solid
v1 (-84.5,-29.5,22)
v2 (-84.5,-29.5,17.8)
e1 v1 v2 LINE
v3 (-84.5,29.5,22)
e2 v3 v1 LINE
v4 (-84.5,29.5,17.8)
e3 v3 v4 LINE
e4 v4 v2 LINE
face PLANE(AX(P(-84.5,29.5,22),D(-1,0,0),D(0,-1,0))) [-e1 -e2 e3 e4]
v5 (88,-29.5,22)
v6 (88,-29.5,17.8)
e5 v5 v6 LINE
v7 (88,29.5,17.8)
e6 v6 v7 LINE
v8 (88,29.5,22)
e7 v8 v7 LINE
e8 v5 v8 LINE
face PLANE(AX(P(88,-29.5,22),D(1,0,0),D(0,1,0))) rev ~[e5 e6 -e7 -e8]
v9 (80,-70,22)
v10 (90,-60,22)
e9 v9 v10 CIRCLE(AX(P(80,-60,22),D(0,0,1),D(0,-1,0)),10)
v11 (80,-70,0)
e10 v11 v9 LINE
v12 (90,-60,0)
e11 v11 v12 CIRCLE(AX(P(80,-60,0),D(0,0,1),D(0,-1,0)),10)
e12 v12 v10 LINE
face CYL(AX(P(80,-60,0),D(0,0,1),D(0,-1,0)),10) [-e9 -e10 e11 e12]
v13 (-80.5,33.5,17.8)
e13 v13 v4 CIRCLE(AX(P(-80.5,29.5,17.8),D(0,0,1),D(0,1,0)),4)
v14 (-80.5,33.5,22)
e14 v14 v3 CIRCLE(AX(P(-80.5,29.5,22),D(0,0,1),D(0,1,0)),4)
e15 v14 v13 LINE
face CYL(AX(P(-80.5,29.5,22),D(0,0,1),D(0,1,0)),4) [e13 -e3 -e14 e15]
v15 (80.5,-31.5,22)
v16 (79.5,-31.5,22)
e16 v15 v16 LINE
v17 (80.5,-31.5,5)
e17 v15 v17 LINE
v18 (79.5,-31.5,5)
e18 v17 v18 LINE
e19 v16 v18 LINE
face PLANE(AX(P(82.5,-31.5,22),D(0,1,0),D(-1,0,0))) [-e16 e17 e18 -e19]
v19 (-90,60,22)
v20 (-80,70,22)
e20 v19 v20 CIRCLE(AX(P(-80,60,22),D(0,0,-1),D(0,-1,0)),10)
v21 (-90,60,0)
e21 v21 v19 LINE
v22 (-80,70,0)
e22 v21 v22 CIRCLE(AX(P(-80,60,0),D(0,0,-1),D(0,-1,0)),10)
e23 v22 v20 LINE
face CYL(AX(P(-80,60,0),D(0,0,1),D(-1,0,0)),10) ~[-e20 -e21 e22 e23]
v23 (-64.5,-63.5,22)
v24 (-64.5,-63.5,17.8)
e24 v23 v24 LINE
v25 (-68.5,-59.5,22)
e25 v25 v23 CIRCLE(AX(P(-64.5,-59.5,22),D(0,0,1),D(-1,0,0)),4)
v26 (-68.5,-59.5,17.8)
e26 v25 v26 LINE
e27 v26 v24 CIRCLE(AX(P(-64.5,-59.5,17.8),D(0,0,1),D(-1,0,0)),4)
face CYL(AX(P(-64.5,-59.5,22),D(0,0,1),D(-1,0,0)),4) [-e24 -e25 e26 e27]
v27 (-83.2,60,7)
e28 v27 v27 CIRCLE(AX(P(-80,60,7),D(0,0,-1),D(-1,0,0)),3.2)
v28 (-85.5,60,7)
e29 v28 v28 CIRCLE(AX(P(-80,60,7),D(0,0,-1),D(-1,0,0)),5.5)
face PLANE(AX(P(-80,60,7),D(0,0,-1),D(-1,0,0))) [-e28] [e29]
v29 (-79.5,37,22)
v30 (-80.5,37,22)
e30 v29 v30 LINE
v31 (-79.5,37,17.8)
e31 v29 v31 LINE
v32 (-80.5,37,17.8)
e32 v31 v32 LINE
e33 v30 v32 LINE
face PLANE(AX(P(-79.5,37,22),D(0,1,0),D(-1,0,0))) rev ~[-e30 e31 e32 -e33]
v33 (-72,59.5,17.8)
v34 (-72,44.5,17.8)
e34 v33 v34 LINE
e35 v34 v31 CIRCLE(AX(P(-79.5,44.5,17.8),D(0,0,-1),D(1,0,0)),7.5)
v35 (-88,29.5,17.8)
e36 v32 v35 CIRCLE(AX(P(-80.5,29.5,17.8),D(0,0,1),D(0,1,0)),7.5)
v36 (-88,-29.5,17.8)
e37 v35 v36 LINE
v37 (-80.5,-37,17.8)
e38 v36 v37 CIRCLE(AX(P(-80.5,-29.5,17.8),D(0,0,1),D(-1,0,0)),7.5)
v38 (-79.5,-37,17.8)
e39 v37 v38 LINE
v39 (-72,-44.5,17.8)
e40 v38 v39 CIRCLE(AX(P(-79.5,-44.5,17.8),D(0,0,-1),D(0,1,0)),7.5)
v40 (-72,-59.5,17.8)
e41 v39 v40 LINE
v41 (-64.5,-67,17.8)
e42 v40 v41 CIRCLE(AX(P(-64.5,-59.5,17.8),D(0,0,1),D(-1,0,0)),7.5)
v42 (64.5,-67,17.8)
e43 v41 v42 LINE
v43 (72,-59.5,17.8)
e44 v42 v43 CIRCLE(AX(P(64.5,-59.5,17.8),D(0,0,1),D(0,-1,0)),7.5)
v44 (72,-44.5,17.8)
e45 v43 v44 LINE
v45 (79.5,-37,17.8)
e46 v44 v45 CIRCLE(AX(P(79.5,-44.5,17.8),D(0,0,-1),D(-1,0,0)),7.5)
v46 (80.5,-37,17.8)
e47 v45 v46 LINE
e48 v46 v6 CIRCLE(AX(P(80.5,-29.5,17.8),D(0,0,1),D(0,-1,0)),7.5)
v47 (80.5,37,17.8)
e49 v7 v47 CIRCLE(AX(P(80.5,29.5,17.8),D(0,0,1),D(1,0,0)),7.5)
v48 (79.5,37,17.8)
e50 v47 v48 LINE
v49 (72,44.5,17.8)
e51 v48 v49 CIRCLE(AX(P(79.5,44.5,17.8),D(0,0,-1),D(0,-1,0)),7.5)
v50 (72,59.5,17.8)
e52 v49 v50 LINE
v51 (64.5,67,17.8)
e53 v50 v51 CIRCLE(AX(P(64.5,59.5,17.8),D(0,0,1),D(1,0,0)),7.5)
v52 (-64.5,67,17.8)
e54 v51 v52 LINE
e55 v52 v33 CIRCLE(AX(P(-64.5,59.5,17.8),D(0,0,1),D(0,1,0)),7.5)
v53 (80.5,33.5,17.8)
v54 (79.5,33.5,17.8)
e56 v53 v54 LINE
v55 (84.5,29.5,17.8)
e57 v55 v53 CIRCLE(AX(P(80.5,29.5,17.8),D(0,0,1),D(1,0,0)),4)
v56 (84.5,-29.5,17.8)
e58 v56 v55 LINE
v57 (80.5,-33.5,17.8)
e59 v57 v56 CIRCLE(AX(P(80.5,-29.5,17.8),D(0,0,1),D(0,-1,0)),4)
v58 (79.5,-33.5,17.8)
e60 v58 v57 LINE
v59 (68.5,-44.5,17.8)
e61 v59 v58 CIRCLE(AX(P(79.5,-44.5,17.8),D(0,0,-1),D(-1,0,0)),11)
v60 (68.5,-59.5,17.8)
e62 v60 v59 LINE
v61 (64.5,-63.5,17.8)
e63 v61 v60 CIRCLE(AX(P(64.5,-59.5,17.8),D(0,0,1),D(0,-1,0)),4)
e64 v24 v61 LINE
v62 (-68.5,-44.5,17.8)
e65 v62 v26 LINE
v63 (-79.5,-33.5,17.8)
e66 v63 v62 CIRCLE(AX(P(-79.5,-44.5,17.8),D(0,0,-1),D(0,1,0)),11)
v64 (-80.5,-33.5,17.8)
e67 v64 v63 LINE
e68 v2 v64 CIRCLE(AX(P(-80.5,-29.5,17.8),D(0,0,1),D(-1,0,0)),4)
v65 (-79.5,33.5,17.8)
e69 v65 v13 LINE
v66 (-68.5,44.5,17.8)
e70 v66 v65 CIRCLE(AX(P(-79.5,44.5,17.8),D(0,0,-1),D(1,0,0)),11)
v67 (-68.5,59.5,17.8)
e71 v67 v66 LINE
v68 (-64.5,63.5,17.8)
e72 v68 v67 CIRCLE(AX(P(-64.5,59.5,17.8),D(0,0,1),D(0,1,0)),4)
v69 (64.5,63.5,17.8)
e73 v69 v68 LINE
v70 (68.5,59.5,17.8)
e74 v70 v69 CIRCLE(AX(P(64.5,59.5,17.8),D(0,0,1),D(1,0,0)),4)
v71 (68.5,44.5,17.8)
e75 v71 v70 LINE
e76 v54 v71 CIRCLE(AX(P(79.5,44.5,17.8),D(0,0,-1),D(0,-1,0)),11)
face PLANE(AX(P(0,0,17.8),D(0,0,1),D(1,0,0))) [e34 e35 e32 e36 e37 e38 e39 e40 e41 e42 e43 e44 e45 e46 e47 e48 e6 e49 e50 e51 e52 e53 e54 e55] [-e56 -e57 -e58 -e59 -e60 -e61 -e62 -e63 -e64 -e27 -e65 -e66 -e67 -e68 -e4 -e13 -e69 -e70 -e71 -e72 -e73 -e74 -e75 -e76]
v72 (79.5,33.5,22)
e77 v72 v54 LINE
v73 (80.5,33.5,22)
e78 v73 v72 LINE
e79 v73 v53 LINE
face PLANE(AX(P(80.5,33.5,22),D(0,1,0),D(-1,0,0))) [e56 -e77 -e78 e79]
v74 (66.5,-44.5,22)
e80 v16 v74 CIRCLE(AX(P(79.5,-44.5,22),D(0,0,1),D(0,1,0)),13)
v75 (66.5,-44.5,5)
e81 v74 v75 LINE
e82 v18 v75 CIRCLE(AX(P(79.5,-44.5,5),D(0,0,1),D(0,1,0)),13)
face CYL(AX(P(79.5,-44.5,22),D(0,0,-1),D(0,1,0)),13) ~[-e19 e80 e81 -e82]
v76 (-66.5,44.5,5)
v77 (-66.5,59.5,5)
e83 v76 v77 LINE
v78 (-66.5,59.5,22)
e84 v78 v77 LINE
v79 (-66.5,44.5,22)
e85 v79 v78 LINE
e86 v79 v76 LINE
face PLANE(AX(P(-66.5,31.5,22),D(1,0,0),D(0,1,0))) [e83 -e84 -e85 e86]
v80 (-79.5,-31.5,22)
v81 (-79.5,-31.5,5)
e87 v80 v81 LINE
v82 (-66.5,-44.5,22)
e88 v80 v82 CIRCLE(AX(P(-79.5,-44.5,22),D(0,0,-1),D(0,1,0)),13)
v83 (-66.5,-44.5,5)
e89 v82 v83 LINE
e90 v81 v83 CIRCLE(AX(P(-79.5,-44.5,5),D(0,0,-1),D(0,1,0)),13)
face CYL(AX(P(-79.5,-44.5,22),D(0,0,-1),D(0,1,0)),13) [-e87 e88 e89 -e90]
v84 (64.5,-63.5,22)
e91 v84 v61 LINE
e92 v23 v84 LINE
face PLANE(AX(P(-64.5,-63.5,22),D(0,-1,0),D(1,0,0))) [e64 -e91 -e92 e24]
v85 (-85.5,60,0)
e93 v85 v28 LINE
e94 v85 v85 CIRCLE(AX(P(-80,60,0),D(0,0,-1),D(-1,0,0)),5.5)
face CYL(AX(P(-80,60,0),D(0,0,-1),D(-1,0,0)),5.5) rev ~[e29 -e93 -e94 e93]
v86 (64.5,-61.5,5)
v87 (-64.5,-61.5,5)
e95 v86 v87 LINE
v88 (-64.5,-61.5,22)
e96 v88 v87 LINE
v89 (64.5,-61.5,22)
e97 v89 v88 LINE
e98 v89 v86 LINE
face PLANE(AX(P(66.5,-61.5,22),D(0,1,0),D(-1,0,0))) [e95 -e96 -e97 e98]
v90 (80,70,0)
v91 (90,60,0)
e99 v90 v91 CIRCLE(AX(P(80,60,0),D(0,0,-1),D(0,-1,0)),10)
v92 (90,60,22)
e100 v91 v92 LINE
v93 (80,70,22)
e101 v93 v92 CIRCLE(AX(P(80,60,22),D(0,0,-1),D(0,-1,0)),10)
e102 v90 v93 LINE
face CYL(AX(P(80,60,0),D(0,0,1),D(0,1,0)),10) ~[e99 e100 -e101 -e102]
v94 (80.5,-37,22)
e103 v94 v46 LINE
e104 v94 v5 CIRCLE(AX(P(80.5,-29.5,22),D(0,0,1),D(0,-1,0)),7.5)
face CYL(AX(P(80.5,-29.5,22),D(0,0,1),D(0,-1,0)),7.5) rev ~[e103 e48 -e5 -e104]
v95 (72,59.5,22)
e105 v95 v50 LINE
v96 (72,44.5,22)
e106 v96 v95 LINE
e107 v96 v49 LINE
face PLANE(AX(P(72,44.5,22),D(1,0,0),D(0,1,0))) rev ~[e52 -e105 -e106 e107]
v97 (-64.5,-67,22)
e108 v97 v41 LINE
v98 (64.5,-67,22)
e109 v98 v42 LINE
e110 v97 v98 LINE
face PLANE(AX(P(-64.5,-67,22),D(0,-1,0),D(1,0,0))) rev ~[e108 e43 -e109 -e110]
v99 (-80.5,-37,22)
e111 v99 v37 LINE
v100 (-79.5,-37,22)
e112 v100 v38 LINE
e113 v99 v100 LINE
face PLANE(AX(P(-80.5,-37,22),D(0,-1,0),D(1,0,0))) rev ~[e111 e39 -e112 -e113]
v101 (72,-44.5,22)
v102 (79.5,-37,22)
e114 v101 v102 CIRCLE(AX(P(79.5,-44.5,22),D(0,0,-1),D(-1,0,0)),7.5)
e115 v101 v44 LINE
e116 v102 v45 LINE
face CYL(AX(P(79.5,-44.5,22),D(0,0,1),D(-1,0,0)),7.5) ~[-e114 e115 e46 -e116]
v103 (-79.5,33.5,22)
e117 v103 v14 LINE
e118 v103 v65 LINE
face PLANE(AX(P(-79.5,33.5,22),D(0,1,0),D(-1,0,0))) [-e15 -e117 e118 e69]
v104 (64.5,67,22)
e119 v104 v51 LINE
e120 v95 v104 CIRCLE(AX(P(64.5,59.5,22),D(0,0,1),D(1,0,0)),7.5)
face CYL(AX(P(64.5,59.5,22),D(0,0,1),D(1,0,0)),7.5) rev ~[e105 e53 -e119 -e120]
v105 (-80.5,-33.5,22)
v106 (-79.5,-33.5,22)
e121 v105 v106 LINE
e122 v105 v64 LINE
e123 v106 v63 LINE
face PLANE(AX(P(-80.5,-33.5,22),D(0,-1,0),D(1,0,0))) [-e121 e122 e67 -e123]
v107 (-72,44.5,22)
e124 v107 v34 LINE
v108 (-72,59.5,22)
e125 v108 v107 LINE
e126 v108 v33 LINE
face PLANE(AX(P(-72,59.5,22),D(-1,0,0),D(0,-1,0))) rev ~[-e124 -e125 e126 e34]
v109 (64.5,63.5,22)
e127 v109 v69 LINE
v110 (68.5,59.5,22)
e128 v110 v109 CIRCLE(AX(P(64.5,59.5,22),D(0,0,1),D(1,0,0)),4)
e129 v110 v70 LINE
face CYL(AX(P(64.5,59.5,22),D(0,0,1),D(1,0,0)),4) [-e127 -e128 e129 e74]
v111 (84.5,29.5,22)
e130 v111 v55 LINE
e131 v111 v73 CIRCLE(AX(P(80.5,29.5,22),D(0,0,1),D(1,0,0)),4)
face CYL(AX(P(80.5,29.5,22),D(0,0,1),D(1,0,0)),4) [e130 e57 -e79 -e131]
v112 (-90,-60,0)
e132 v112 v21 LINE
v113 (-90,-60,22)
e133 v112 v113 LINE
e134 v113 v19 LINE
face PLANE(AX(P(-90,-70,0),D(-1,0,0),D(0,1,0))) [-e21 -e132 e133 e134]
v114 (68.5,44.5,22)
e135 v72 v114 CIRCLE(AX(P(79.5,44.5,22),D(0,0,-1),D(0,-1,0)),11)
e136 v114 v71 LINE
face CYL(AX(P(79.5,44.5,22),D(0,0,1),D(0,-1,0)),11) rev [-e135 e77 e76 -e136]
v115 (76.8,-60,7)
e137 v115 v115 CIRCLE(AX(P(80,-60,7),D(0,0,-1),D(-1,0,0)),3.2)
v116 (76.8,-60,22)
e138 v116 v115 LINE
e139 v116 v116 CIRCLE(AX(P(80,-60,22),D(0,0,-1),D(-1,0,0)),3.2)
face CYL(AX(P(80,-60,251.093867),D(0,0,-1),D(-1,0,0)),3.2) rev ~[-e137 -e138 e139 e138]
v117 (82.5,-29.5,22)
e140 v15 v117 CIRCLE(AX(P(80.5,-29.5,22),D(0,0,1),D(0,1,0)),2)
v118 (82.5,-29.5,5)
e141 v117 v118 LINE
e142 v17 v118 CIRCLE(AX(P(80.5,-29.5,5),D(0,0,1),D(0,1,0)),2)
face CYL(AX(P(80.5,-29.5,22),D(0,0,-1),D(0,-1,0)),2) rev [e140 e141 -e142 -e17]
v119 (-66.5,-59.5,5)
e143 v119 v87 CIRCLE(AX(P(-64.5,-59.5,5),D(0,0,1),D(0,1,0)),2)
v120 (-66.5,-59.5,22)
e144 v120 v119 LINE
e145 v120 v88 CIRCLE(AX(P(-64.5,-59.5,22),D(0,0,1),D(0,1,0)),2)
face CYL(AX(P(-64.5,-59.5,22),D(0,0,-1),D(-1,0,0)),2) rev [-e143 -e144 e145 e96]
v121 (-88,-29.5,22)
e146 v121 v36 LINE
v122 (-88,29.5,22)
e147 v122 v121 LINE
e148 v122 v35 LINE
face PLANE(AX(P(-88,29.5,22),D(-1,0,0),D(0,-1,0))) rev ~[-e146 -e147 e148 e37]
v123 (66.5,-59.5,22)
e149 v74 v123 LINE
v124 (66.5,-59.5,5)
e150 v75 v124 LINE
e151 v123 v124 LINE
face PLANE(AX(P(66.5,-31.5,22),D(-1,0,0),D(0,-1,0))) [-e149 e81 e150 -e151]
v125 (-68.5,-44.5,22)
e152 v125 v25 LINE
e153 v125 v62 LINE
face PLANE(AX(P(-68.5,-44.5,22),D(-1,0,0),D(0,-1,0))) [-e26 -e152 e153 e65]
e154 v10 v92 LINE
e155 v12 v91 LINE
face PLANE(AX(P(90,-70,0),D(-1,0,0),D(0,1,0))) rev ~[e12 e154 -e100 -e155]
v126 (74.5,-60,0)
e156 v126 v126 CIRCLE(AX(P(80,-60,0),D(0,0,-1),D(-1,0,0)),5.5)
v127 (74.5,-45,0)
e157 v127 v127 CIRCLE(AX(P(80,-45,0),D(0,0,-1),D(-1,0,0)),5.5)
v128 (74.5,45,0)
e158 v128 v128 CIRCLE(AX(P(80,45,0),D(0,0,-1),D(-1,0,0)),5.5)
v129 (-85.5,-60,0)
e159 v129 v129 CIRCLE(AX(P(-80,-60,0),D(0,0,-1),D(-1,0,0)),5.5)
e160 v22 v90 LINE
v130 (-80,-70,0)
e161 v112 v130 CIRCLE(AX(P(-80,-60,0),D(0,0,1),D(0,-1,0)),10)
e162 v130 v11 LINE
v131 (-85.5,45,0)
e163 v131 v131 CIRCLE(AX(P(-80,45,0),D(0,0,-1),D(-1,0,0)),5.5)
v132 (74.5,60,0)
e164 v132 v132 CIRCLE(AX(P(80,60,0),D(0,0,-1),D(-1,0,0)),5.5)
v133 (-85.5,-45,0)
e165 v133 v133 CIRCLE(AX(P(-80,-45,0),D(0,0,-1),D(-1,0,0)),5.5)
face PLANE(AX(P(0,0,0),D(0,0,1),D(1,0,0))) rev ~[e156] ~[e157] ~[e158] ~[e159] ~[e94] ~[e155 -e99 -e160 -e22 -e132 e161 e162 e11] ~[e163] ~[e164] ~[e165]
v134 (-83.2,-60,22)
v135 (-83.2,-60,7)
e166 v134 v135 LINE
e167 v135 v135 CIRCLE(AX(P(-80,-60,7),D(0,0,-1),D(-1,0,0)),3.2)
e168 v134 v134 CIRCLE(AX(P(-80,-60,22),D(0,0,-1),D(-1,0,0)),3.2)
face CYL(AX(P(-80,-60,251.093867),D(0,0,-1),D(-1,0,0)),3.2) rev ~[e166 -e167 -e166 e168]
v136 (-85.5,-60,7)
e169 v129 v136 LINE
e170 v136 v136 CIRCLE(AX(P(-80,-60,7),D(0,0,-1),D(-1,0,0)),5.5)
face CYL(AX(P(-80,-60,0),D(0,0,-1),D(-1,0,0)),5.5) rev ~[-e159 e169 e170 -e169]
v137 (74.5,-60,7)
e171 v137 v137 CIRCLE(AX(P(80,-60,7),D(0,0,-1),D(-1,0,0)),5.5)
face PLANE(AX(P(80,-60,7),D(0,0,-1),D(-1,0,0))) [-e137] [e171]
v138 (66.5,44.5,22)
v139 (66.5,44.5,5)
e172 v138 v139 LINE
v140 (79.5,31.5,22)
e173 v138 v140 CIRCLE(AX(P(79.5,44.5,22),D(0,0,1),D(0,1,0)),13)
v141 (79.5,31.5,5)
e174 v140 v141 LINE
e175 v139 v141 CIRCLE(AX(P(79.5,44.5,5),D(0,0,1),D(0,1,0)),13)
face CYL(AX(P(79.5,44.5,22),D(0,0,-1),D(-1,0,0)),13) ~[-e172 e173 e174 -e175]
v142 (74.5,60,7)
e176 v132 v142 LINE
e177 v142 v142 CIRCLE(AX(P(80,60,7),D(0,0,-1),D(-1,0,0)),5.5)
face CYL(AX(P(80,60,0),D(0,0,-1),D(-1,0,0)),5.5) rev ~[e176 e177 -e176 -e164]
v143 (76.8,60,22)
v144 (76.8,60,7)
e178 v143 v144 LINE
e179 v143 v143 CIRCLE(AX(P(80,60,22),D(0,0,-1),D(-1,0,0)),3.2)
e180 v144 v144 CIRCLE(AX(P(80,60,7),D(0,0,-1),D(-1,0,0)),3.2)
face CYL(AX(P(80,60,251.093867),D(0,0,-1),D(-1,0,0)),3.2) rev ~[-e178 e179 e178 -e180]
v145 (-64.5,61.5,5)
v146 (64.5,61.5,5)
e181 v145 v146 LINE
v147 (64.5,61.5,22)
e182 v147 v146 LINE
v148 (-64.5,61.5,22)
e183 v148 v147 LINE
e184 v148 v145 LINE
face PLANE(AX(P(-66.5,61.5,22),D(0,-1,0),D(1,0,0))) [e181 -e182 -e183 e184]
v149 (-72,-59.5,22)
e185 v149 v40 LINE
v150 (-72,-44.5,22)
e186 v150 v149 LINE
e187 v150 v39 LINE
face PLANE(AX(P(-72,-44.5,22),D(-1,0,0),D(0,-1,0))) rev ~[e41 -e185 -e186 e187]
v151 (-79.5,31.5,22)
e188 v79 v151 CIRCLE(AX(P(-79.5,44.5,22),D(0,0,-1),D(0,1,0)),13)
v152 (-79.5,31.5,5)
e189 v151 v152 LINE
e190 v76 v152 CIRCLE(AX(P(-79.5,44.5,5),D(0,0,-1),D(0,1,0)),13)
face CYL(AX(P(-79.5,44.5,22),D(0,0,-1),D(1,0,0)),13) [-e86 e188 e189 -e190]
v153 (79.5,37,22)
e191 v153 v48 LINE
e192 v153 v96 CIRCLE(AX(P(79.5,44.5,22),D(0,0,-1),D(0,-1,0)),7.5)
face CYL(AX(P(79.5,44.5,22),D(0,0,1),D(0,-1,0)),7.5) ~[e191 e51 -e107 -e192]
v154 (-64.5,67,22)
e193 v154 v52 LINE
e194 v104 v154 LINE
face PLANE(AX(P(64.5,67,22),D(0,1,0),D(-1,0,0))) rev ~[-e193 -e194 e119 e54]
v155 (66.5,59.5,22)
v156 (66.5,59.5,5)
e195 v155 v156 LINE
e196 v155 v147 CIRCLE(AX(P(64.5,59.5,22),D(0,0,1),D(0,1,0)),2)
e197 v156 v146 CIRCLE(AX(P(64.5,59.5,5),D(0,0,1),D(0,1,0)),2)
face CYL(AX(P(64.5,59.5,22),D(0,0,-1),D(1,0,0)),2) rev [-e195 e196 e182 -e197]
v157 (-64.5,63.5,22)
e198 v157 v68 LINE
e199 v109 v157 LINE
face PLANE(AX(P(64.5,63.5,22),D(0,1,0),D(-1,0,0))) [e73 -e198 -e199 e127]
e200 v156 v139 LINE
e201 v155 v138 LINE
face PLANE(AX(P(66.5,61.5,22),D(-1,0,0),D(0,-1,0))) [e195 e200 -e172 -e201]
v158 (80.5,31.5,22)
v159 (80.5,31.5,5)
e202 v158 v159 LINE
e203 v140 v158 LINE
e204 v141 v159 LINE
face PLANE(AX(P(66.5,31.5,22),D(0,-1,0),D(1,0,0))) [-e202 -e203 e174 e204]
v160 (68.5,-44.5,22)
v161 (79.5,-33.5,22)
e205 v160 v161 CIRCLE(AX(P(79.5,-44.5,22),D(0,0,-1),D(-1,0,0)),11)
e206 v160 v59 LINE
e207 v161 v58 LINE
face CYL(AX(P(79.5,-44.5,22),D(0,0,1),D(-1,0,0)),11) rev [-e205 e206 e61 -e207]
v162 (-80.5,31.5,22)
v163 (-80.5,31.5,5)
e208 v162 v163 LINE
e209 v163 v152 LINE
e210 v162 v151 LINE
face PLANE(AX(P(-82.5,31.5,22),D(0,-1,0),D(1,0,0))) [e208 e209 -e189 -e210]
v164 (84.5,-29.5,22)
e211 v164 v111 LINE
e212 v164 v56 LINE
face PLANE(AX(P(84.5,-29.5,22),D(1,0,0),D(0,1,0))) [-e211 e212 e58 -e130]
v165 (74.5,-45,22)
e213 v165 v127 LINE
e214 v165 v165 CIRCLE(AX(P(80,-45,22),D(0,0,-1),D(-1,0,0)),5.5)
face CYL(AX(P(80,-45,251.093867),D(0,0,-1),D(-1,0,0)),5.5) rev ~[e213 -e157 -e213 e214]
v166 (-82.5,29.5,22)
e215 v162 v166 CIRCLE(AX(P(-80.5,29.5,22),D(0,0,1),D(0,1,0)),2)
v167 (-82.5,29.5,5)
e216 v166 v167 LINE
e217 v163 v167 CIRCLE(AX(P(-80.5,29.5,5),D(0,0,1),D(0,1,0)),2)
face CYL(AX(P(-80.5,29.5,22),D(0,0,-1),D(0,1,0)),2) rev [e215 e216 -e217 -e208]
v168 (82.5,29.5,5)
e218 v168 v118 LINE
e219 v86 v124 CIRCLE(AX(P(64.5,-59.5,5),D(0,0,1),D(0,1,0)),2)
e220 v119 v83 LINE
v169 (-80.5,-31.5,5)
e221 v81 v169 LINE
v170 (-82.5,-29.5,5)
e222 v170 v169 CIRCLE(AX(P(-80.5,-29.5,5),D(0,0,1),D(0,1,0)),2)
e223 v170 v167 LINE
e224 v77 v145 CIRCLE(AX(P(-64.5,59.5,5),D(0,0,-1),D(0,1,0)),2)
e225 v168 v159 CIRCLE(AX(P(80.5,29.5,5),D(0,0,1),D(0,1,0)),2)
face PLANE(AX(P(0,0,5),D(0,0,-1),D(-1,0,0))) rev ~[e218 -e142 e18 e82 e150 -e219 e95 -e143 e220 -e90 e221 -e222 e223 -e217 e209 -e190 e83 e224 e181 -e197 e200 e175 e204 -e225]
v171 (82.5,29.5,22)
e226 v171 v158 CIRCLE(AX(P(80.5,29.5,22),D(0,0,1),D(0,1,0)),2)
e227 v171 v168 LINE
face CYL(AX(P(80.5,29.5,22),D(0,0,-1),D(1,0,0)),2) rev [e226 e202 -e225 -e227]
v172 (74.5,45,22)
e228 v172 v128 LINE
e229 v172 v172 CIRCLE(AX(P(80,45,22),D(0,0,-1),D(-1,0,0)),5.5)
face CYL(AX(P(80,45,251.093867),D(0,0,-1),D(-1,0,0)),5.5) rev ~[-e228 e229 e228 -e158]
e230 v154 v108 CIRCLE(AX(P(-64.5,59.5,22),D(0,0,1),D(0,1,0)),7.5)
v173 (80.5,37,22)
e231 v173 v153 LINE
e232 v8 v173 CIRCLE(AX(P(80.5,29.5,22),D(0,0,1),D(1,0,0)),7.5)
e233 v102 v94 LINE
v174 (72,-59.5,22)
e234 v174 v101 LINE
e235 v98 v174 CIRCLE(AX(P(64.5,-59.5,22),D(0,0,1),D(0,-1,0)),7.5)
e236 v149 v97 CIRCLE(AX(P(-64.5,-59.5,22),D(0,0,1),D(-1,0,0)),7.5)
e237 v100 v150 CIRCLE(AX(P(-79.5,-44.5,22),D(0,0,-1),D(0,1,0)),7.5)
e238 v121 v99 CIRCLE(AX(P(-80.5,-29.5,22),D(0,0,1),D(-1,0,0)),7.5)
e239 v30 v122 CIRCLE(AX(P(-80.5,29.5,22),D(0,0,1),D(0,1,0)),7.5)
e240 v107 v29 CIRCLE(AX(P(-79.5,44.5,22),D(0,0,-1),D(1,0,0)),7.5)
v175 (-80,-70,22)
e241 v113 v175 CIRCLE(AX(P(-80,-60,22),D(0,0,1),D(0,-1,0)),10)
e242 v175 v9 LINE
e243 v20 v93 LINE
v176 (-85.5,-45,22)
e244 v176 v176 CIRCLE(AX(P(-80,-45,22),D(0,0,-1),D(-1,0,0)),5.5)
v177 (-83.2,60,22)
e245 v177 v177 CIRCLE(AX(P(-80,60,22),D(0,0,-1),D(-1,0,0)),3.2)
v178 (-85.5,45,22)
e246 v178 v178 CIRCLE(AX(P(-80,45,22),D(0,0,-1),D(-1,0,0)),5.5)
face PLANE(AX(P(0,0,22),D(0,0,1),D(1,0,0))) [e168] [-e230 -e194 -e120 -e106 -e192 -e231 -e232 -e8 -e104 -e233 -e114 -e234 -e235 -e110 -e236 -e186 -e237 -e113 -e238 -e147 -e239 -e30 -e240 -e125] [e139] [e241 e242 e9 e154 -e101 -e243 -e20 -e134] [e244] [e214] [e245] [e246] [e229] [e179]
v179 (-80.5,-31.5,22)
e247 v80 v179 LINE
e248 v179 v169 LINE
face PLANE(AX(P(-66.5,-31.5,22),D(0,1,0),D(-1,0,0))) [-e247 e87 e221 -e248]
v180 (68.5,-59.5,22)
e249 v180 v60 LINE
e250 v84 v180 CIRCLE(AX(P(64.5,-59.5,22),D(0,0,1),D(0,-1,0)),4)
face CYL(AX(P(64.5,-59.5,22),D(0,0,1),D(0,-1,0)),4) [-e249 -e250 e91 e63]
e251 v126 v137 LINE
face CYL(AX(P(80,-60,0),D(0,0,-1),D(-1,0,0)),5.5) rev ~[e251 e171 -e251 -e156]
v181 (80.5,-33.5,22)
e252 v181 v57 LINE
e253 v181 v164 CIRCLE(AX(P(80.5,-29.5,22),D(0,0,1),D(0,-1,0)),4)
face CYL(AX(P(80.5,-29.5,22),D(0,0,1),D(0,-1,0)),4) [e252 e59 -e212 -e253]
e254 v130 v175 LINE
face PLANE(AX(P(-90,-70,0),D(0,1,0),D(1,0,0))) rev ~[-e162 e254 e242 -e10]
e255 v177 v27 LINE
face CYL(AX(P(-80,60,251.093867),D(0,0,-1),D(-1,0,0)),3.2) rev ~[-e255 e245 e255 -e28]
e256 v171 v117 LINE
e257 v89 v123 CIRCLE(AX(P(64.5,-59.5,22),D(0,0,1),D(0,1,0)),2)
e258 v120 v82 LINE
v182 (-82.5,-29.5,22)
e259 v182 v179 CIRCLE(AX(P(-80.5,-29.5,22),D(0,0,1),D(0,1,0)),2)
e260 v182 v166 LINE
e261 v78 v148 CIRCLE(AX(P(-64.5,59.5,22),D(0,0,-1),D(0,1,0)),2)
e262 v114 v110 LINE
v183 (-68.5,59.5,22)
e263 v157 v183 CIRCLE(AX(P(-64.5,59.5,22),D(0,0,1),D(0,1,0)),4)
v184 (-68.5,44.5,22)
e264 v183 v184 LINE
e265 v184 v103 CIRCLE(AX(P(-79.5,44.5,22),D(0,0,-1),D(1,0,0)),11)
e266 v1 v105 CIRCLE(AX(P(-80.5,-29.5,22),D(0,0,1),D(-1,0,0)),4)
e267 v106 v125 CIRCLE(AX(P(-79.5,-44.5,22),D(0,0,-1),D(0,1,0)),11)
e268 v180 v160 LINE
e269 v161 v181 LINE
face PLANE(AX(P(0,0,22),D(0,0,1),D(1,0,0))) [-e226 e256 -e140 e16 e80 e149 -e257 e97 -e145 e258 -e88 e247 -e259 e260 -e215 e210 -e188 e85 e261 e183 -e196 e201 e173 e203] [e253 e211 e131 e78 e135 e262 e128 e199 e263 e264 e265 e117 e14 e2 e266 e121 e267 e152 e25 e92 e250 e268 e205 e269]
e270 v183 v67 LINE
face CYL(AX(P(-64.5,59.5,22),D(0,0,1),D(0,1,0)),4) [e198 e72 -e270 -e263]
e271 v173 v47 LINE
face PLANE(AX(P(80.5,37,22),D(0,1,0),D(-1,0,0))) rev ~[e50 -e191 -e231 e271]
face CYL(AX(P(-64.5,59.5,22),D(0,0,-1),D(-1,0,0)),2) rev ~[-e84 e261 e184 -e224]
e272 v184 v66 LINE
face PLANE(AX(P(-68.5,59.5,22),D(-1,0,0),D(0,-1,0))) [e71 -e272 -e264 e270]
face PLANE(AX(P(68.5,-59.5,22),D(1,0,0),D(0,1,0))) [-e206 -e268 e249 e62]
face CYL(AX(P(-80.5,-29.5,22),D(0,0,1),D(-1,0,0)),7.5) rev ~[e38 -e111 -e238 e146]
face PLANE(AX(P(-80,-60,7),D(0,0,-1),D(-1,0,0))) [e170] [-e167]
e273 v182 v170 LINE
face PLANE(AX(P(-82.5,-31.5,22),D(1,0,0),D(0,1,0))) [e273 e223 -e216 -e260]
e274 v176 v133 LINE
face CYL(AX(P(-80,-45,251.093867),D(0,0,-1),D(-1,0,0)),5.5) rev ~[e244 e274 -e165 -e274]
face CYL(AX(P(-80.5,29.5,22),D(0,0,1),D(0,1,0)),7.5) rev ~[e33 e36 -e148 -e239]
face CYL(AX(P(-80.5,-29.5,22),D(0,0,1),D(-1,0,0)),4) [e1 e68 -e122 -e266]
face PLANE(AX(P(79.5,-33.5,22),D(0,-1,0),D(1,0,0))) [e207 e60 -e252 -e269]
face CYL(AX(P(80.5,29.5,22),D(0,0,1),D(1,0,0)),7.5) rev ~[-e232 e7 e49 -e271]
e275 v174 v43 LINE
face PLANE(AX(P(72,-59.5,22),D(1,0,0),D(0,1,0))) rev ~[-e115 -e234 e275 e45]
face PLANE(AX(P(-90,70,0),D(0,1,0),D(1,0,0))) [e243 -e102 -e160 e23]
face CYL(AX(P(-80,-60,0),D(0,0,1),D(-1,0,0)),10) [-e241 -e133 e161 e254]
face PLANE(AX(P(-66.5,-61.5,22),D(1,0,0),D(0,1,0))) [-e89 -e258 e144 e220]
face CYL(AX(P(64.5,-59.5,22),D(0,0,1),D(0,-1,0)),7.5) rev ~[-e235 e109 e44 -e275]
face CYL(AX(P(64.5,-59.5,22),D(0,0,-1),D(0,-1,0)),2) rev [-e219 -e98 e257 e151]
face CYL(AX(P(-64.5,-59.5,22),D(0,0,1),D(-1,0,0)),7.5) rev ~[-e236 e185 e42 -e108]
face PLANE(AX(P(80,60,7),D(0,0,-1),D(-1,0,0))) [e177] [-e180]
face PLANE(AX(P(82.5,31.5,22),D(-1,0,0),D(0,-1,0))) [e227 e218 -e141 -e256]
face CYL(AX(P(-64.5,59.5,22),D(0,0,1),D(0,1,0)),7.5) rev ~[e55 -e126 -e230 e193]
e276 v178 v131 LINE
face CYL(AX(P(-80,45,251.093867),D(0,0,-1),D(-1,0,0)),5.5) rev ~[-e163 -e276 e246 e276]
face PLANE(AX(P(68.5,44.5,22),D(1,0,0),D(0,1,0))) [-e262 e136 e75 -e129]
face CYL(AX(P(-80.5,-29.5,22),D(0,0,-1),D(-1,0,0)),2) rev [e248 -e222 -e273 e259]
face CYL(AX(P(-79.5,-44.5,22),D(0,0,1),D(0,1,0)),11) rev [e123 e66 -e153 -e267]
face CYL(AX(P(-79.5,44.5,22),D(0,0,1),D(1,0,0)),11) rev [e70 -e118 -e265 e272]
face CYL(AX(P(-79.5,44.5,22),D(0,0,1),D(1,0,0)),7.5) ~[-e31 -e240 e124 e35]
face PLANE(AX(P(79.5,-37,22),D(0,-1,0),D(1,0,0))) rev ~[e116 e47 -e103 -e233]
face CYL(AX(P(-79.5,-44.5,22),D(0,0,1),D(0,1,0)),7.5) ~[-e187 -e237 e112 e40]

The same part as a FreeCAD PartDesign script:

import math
import FreeCAD as App
import Part
import Sketcher


def edges_at(feature, points):
    """Names of the edges that pass closest to the given points."""
    edges = feature.Shape.Edges
    near = lambda p: min(range(len(edges)), key=lambda i: edges[i].distToShape(Part.Vertex(*p))[0])
    return sorted({f"Edge{near(p) + 1}" for p in points})

doc = App.newDocument("Part")
params = doc.addObject("Spreadsheet::Sheet", "Params")
for row, (alias, value) in enumerate([
    ("sketch1_width", "180 mm"),
    ("sketch1_height", "140 mm"),
    ("pad1_length", "22 mm"),
    ("sketch2_width", "133 mm"),
    ("sketch2_width2", "16 mm"),
    ("sketch2_height", "30 mm"),
    ("sketch2_height2", "63 mm"),
    ("pocket1_length", "17 mm"),
    ("fillet_radius", "2 mm"),
    ("fillet2_radius", "13 mm"),
    ("sketch3_radius", "4 mm"),
    ("sketch3_radius2", "11 mm"),
    ("sketch3_width", "1 mm"),
    ("sketch3_width2", "129 mm"),
    ("sketch3_height", "15 mm"),
    ("pocket2_length", "4.2 mm"),
    ("fillet3_radius", "10 mm"),
    ("sketch4_diameter", "11 mm"),
    ("hole_diameter", "11 mm"),
    ("sketch5_diameter", "6.4 mm"),
    ("hole2_diameter", "6.4 mm"),
    ("sketch6_diameter", "11 mm"),
    ("pocket3_length", "7 mm"),
], start=1):
    params.set(f"A{row}", alias)
    params.set(f"B{row}", "=" + value)
    params.setAlias(f"B{row}", alias)

body = doc.addObject("PartDesign::Body", "Body")

sketch1 = body.newObject("Sketcher::SketchObject", "Sketch")
sketch1.AttachmentSupport = (doc.getObject("XY_Plane"), [""])
sketch1.MapMode = "FlatFace"
sketch1.addGeometry([
    Part.LineSegment(App.Vector(-90, 70, 0), App.Vector(-90, -70, 0)),
    Part.LineSegment(App.Vector(-90, -70, 0), App.Vector(90, -70, 0)),
    Part.LineSegment(App.Vector(90, -70, 0), App.Vector(90, 70, 0)),
    Part.LineSegment(App.Vector(90, 70, 0), App.Vector(-90, 70, 0)),
], False)
sketch1.addConstraint([
    Sketcher.Constraint("Coincident", 0, 2, 1, 1),
    Sketcher.Constraint("Coincident", 1, 2, 2, 1),
    Sketcher.Constraint("Coincident", 2, 2, 3, 1),
    Sketcher.Constraint("Coincident", 3, 2, 0, 1),
    Sketcher.Constraint("Vertical", 0),
    Sketcher.Constraint("Horizontal", 1),
    Sketcher.Constraint("Vertical", 2),
    Sketcher.Constraint("Horizontal", 3),
    Sketcher.Constraint("Symmetric", 0, 2, 2, 2, -1, 1),
    Sketcher.Constraint("DistanceX", 1, 1, 1, 2, 180.0),
    Sketcher.Constraint("DistanceY", 0, 2, 0, 1, 140.0),
])
sketch1.setExpression("Constraints[9]", "Params.sketch1_width")
sketch1.setExpression("Constraints[10]", "Params.sketch1_height")
pad1 = body.newObject("PartDesign::Pad", "Pad")
pad1.Profile = sketch1
pad1.setExpression("Length", "Params.pad1_length")

sketch2 = body.newObject("Sketcher::SketchObject", "Sketch001")
sketch2.AttachmentSupport = (doc.getObject("XY_Plane"), [""])
sketch2.MapMode = "FlatFace"
sketch2.AttachmentOffset = App.Placement(App.Vector(0, 0, 22), App.Rotation())
sketch2.addGeometry([
    Part.LineSegment(App.Vector(66, 62, 0), App.Vector(-66, 62, 0)),
    Part.LineSegment(App.Vector(-66, 62, 0), App.Vector(-66, 32, 0)),
    Part.LineSegment(App.Vector(-66, 32, 0), App.Vector(-82, 32, 0)),
    Part.LineSegment(App.Vector(-82, 32, 0), App.Vector(-82, -32, 0)),
    Part.LineSegment(App.Vector(-82, -32, 0), App.Vector(-66, -32, 0)),
    Part.LineSegment(App.Vector(-66, -32, 0), App.Vector(-66, -62, 0)),
    Part.LineSegment(App.Vector(-66, -62, 0), App.Vector(66, -62, 0)),
    Part.LineSegment(App.Vector(66, -62, 0), App.Vector(66, -32, 0)),
    Part.LineSegment(App.Vector(66, -32, 0), App.Vector(82, -32, 0)),
    Part.LineSegment(App.Vector(82, -32, 0), App.Vector(82, 32, 0)),
    Part.LineSegment(App.Vector(82, 32, 0), App.Vector(66, 32, 0)),
    Part.LineSegment(App.Vector(66, 32, 0), App.Vector(66, 62, 0)),
], False)
sketch2.addConstraint([
    Sketcher.Constraint("Coincident", 0, 2, 1, 1),
    Sketcher.Constraint("Coincident", 1, 2, 2, 1),
    Sketcher.Constraint("Coincident", 2, 2, 3, 1),
    Sketcher.Constraint("Coincident", 3, 2, 4, 1),
    Sketcher.Constraint("Coincident", 4, 2, 5, 1),
    Sketcher.Constraint("Coincident", 5, 2, 6, 1),
    Sketcher.Constraint("Coincident", 6, 2, 7, 1),
    Sketcher.Constraint("Coincident", 7, 2, 8, 1),
    Sketcher.Constraint("Coincident", 8, 2, 9, 1),
    Sketcher.Constraint("Coincident", 9, 2, 10, 1),
    Sketcher.Constraint("Coincident", 10, 2, 11, 1),
    Sketcher.Constraint("Coincident", 11, 2, 0, 1),
    Sketcher.Constraint("Horizontal", 0),
    Sketcher.Constraint("Vertical", 1),
    Sketcher.Constraint("Horizontal", 2),
    Sketcher.Constraint("Vertical", 3),
    Sketcher.Constraint("Horizontal", 4),
    Sketcher.Constraint("Vertical", 5),
    Sketcher.Constraint("Horizontal", 6),
    Sketcher.Constraint("Vertical", 7),
    Sketcher.Constraint("Horizontal", 8),
    Sketcher.Constraint("Vertical", 9),
    Sketcher.Constraint("Horizontal", 10),
    Sketcher.Constraint("Vertical", 11),
    Sketcher.Constraint("Symmetric", 0, 2, 6, 2, -1, 1),
    Sketcher.Constraint("Symmetric", 2, 2, 8, 2, -1, 1),
    Sketcher.Constraint("Symmetric", 4, 2, 10, 2, -1, 1),
    Sketcher.Constraint("Symmetric", 4, 2, 7, 2, -2),
    Sketcher.Constraint("DistanceX", 0, 2, 0, 1, 133.0),
    Sketcher.Constraint("DistanceX", 2, 2, 2, 1, 16.0),
    Sketcher.Constraint("DistanceY", 1, 2, 1, 1, 30.0),
    Sketcher.Constraint("DistanceY", 3, 2, 3, 1, 63.0),
])
sketch2.setExpression("Constraints[28]", "Params.sketch2_width")
sketch2.setExpression("Constraints[29]", "Params.sketch2_width2")
sketch2.setExpression("Constraints[30]", "Params.sketch2_height")
sketch2.setExpression("Constraints[31]", "Params.sketch2_height2")
pocket1 = body.newObject("PartDesign::Pocket", "Pocket")
pocket1.Profile = sketch2
pocket1.setExpression("Length", "Params.pocket1_length")
doc.recompute()

fillet = body.newObject("PartDesign::Fillet", "Fillet")
fillet.Base = (pocket1, edges_at(pocket1, [
    (-66.5, 61.5, 13.5),
    (66.5, 61.5, 13.5),
    (82.5, 31.5, 13.5),
    (82.5, -31.5, 13.5),
    (66.5, -61.5, 13.5),
    (-66.5, -61.5, 13.5),
    (-82.5, -31.5, 13.5),
    (-82.5, 31.5, 13.5),
]))
fillet.setExpression("Radius", "Params.fillet_radius")
doc.recompute()

fillet2 = body.newObject("PartDesign::Fillet", "Fillet001")
fillet2.Base = (fillet, edges_at(fillet, [
    (-66.5, 31.5, 13.5),
    (66.5, 31.5, 13.5),
    (66.5, -31.5, 13.5),
    (-66.5, -31.5, 13.5),
]))
fillet2.setExpression("Radius", "Params.fillet2_radius")

sketch3 = body.newObject("Sketcher::SketchObject", "Sketch002")
sketch3.AttachmentSupport = (doc.getObject("XY_Plane"), [""])
sketch3.MapMode = "FlatFace"
sketch3.AttachmentOffset = App.Placement(App.Vector(0, 0, 22), App.Rotation())
sketch3.addGeometry([
    Part.LineSegment(App.Vector(-72, 59.5, 0), App.Vector(-72, 44.5, 0)),
    Part.ArcOfCircle(Part.Circle(App.Vector(-79.5, 44.5, 0), App.Vector(0, 0, 1), 7.5), math.radians(-90), math.radians(0)),
    Part.LineSegment(App.Vector(-79.5, 37, 0), App.Vector(-80.5, 37, 0)),
    Part.ArcOfCircle(Part.Circle(App.Vector(-80.5, 29.5, 0), App.Vector(0, 0, 1), 7.5), math.radians(90), math.radians(180)),
    Part.LineSegment(App.Vector(-88, 29.5, 0), App.Vector(-88, -29.5, 0)),
    Part.ArcOfCircle(Part.Circle(App.Vector(-80.5, -29.5, 0), App.Vector(0, 0, 1), 7.5), math.radians(180), math.radians(270)),
    Part.LineSegment(App.Vector(-80.5, -37, 0), App.Vector(-79.5, -37, 0)),
    Part.ArcOfCircle(Part.Circle(App.Vector(-79.5, -44.5, 0), App.Vector(0, 0, 1), 7.5), math.radians(0), math.radians(90)),
    Part.LineSegment(App.Vector(-72, -44.5, 0), App.Vector(-72, -59.5, 0)),
    Part.ArcOfCircle(Part.Circle(App.Vector(-64.5, -59.5, 0), App.Vector(0, 0, 1), 7.5), math.radians(180), math.radians(270)),
    Part.LineSegment(App.Vector(-64.5, -67, 0), App.Vector(64.5, -67, 0)),
    Part.ArcOfCircle(Part.Circle(App.Vector(64.5, -59.5, 0), App.Vector(0, 0, 1), 7.5), math.radians(-90), math.radians(0)),
    Part.LineSegment(App.Vector(72, -59.5, 0), App.Vector(72, -44.5, 0)),
    Part.ArcOfCircle(Part.Circle(App.Vector(79.5, -44.5, 0), App.Vector(0, 0, 1), 7.5), math.radians(90), math.radians(180)),
    Part.LineSegment(App.Vector(79.5, -37, 0), App.Vector(80.5, -37, 0)),
    Part.ArcOfCircle(Part.Circle(App.Vector(80.5, -29.5, 0), App.Vector(0, 0, 1), 7.5), math.radians(-90), math.radians(0)),
    Part.LineSegment(App.Vector(88, -29.5, 0), App.Vector(88, 29.5, 0)),
    Part.ArcOfCircle(Part.Circle(App.Vector(80.5, 29.5, 0), App.Vector(0, 0, 1), 7.5), math.radians(0), math.radians(90)),
    Part.LineSegment(App.Vector(80.5, 37, 0), App.Vector(79.5, 37, 0)),
    Part.ArcOfCircle(Part.Circle(App.Vector(79.5, 44.5, 0), App.Vector(0, 0, 1), 7.5), math.radians(180), math.radians(270)),
    Part.LineSegment(App.Vector(72, 44.5, 0), App.Vector(72, 59.5, 0)),
    Part.ArcOfCircle(Part.Circle(App.Vector(64.5, 59.5, 0), App.Vector(0, 0, 1), 7.5), math.radians(0), math.radians(90)),
    Part.LineSegment(App.Vector(64.5, 67, 0), App.Vector(-64.5, 67, 0)),
    Part.ArcOfCircle(Part.Circle(App.Vector(-64.5, 59.5, 0), App.Vector(0, 0, 1), 7.5), math.radians(90), math.radians(180)),
    Part.LineSegment(App.Vector(-79.5, -33.5, 0), App.Vector(-80.5, -33.5, 0)),
    Part.ArcOfCircle(Part.Circle(App.Vector(-80.5, -29.5, 0), App.Vector(0, 0, 1), 4), math.radians(180), math.radians(270)),
    Part.LineSegment(App.Vector(-84.5, -29.5, 0), App.Vector(-84.5, 29.5, 0)),
    Part.ArcOfCircle(Part.Circle(App.Vector(-80.5, 29.5, 0), App.Vector(0, 0, 1), 4), math.radians(90), math.radians(180)),
    Part.LineSegment(App.Vector(-80.5, 33.5, 0), App.Vector(-79.5, 33.5, 0)),
    Part.ArcOfCircle(Part.Circle(App.Vector(-79.5, 44.5, 0), App.Vector(0, 0, 1), 11), math.radians(-90), math.radians(0)),
    Part.LineSegment(App.Vector(-68.5, 44.5, 0), App.Vector(-68.5, 59.5, 0)),
    Part.ArcOfCircle(Part.Circle(App.Vector(-64.5, 59.5, 0), App.Vector(0, 0, 1), 4), math.radians(90), math.radians(180)),
    Part.LineSegment(App.Vector(-64.5, 63.5, 0), App.Vector(64.5, 63.5, 0)),
    Part.ArcOfCircle(Part.Circle(App.Vector(64.5, 59.5, 0), App.Vector(0, 0, 1), 4), math.radians(0), math.radians(90)),
    Part.LineSegment(App.Vector(68.5, 59.5, 0), App.Vector(68.5, 44.5, 0)),
    Part.ArcOfCircle(Part.Circle(App.Vector(79.5, 44.5, 0), App.Vector(0, 0, 1), 11), math.radians(180), math.radians(270)),
    Part.LineSegment(App.Vector(79.5, 33.5, 0), App.Vector(80.5, 33.5, 0)),
    Part.ArcOfCircle(Part.Circle(App.Vector(80.5, 29.5, 0), App.Vector(0, 0, 1), 4), math.radians(0), math.radians(90)),
    Part.LineSegment(App.Vector(84.5, 29.5, 0), App.Vector(84.5, -29.5, 0)),
    Part.ArcOfCircle(Part.Circle(App.Vector(80.5, -29.5, 0), App.Vector(0, 0, 1), 4), math.radians(-90), math.radians(0)),
    Part.LineSegment(App.Vector(80.5, -33.5, 0), App.Vector(79.5, -33.5, 0)),
    Part.ArcOfCircle(Part.Circle(App.Vector(79.5, -44.5, 0), App.Vector(0, 0, 1), 11), math.radians(90), math.radians(180)),
    Part.LineSegment(App.Vector(68.5, -44.5, 0), App.Vector(68.5, -59.5, 0)),
    Part.ArcOfCircle(Part.Circle(App.Vector(64.5, -59.5, 0), App.Vector(0, 0, 1), 4), math.radians(-90), math.radians(0)),
    Part.LineSegment(App.Vector(64.5, -63.5, 0), App.Vector(-64.5, -63.5, 0)),
    Part.ArcOfCircle(Part.Circle(App.Vector(-64.5, -59.5, 0), App.Vector(0, 0, 1), 4), math.radians(180), math.radians(270)),
    Part.LineSegment(App.Vector(-68.5, -59.5, 0), App.Vector(-68.5, -44.5, 0)),
    Part.ArcOfCircle(Part.Circle(App.Vector(-79.5, -44.5, 0), App.Vector(0, 0, 1), 11), math.radians(0), math.radians(90)),
], False)
sketch3.addConstraint([
    Sketcher.Constraint("Tangent", 0, 2, 1, 2),
    Sketcher.Constraint("Tangent", 1, 1, 2, 1),
    Sketcher.Constraint("Tangent", 2, 2, 3, 1),
    Sketcher.Constraint("Tangent", 3, 2, 4, 1),
    Sketcher.Constraint("Tangent", 4, 2, 5, 1),
    Sketcher.Constraint("Tangent", 5, 2, 6, 1),
    Sketcher.Constraint("Tangent", 6, 2, 7, 2),
    Sketcher.Constraint("Tangent", 7, 1, 8, 1),
    Sketcher.Constraint("Tangent", 8, 2, 9, 1),
    Sketcher.Constraint("Tangent", 9, 2, 10, 1),
    Sketcher.Constraint("Tangent", 10, 2, 11, 1),
    Sketcher.Constraint("Tangent", 11, 2, 12, 1),
    Sketcher.Constraint("Tangent", 12, 2, 13, 2),
    Sketcher.Constraint("Tangent", 13, 1, 14, 1),
    Sketcher.Constraint("Tangent", 14, 2, 15, 1),
    Sketcher.Constraint("Tangent", 15, 2, 16, 1),
    Sketcher.Constraint("Tangent", 16, 2, 17, 1),
    Sketcher.Constraint("Tangent", 17, 2, 18, 1),
    Sketcher.Constraint("Tangent", 18, 2, 19, 2),
    Sketcher.Constraint("Tangent", 19, 1, 20, 1),
    Sketcher.Constraint("Tangent", 20, 2, 21, 1),
    Sketcher.Constraint("Tangent", 21, 2, 22, 1),
    Sketcher.Constraint("Tangent", 22, 2, 23, 1),
    Sketcher.Constraint("Tangent", 23, 2, 0, 1),
    Sketcher.Constraint("Tangent", 24, 2, 25, 2),
    Sketcher.Constraint("Tangent", 25, 1, 26, 1),
    Sketcher.Constraint("Tangent", 26, 2, 27, 2),
    Sketcher.Constraint("Tangent", 27, 1, 28, 1),
    Sketcher.Constraint("Tangent", 28, 2, 29, 1),
    Sketcher.Constraint("Tangent", 29, 2, 30, 1),
    Sketcher.Constraint("Tangent", 30, 2, 31, 2),
    Sketcher.Constraint("Tangent", 31, 1, 32, 1),
    Sketcher.Constraint("Tangent", 32, 2, 33, 2),
    Sketcher.Constraint("Tangent", 33, 1, 34, 1),
    Sketcher.Constraint("Tangent", 34, 2, 35, 1),
    Sketcher.Constraint("Tangent", 35, 2, 36, 1),
    Sketcher.Constraint("Tangent", 36, 2, 37, 2),
    Sketcher.Constraint("Tangent", 37, 1, 38, 1),
    Sketcher.Constraint("Tangent", 38, 2, 39, 2),
    Sketcher.Constraint("Tangent", 39, 1, 40, 1),
    Sketcher.Constraint("Tangent", 40, 2, 41, 1),
    Sketcher.Constraint("Tangent", 41, 2, 42, 1),
    Sketcher.Constraint("Tangent", 42, 2, 43, 2),
    Sketcher.Constraint("Tangent", 43, 1, 44, 1),
    Sketcher.Constraint("Tangent", 44, 2, 45, 2),
    Sketcher.Constraint("Tangent", 45, 1, 46, 1),
    Sketcher.Constraint("Tangent", 46, 2, 47, 1),
    Sketcher.Constraint("Tangent", 47, 2, 24, 1),
    Sketcher.Constraint("Vertical", 0),
    Sketcher.Constraint("Horizontal", 2),
    Sketcher.Constraint("Vertical", 4),
    Sketcher.Constraint("Horizontal", 6),
    Sketcher.Constraint("Vertical", 8),
    Sketcher.Constraint("Horizontal", 10),
    Sketcher.Constraint("Vertical", 12),
    Sketcher.Constraint("Horizontal", 14),
    Sketcher.Constraint("Vertical", 16),
    Sketcher.Constraint("Horizontal", 18),
    Sketcher.Constraint("Vertical", 20),
    Sketcher.Constraint("Horizontal", 22),
    Sketcher.Constraint("Horizontal", 24),
    Sketcher.Constraint("Vertical", 26),
    Sketcher.Constraint("Horizontal", 28),
    Sketcher.Constraint("Vertical", 30),
    Sketcher.Constraint("Horizontal", 32),
    Sketcher.Constraint("Vertical", 34),
    Sketcher.Constraint("Horizontal", 36),
    Sketcher.Constraint("Vertical", 38),
    Sketcher.Constraint("Horizontal", 40),
    Sketcher.Constraint("Vertical", 42),
    Sketcher.Constraint("Horizontal", 44),
    Sketcher.Constraint("Vertical", 46),
    Sketcher.Constraint("Coincident", 25, 3, 5, 3),
    Sketcher.Constraint("Coincident", 27, 3, 3, 3),
    Sketcher.Constraint("Coincident", 29, 3, 1, 3),
    Sketcher.Constraint("Coincident", 31, 3, 23, 3),
    Sketcher.Constraint("Coincident", 33, 3, 21, 3),
    Sketcher.Constraint("Coincident", 35, 3, 19, 3),
    Sketcher.Constraint("Coincident", 37, 3, 17, 3),
    Sketcher.Constraint("Coincident", 39, 3, 15, 3),
    Sketcher.Constraint("Coincident", 41, 3, 13, 3),
    Sketcher.Constraint("Coincident", 43, 3, 11, 3),
    Sketcher.Constraint("Coincident", 45, 3, 9, 3),
    Sketcher.Constraint("Equal", 1, 3),
    Sketcher.Constraint("Equal", 3, 5),
    Sketcher.Constraint("Equal", 5, 7),
    Sketcher.Constraint("Equal", 7, 9),
    Sketcher.Constraint("Equal", 9, 11),
    Sketcher.Constraint("Equal", 11, 13),
    Sketcher.Constraint("Equal", 13, 15),
    Sketcher.Constraint("Equal", 15, 17),
    Sketcher.Constraint("Equal", 17, 19),
    Sketcher.Constraint("Equal", 19, 21),
    Sketcher.Constraint("Equal", 21, 23),
    Sketcher.Constraint("Equal", 41, 47),
    Sketcher.Constraint("Symmetric", 1, 3, 13, 3, -1, 1),
    Sketcher.Constraint("Symmetric", 5, 3, 17, 3, -1, 1),
    Sketcher.Constraint("Symmetric", 9, 3, 21, 3, -1, 1),
    Sketcher.Constraint("Symmetric", 7, 3, 13, 3, -2),
    Sketcher.Constraint("Radius", 25, 4.0),
    Sketcher.Constraint("Radius", 29, 11.0),
    Sketcher.Constraint("DistanceX", 2, 2, 2, 1, 1.0),
    Sketcher.Constraint("DistanceX", 10, 1, 10, 2, 129.0),
    Sketcher.Constraint("DistanceY", 0, 2, 0, 1, 15.0),
    Sketcher.Constraint("DistanceY", 4, 2, 4, 1, 59.0),
])
sketch3.setExpression("Constraints[99]", "Params.sketch3_radius")
sketch3.setExpression("Constraints[100]", "Params.sketch3_radius2")
sketch3.setExpression("Constraints[101]", "Params.sketch3_width")
sketch3.setExpression("Constraints[102]", "Params.sketch3_width2")
sketch3.setExpression("Constraints[103]", "Params.sketch3_height")
pocket2 = body.newObject("PartDesign::Pocket", "Pocket001")
pocket2.Profile = sketch3
pocket2.setExpression("Length", "Params.pocket2_length")
doc.recompute()

fillet3 = body.newObject("PartDesign::Fillet", "Fillet002")
fillet3.Base = (pocket2, edges_at(pocket2, [
    (-90, 70, 11),
    (90, 70, 11),
    (90, -70, 11),
    (-90, -70, 11),
]))
fillet3.setExpression("Radius", "Params.fillet3_radius")

sketch4 = body.newObject("Sketcher::SketchObject", "Sketch003")
sketch4.AttachmentSupport = (doc.getObject("XY_Plane"), [""])
sketch4.MapMode = "FlatFace"
sketch4.AttachmentOffset = App.Placement(App.Vector(0, 0, 22), App.Rotation())
sketch4.addGeometry([
    Part.Circle(App.Vector(-80, 45, 0), App.Vector(0, 0, 1), 6),
    Part.Circle(App.Vector(-80, -45, 0), App.Vector(0, 0, 1), 6),
    Part.Circle(App.Vector(80, -45, 0), App.Vector(0, 0, 1), 6),
    Part.Circle(App.Vector(80, 45, 0), App.Vector(0, 0, 1), 6),
], False)
sketch4.addConstraint([
    Sketcher.Constraint("Equal", 0, 1),
    Sketcher.Constraint("Equal", 1, 2),
    Sketcher.Constraint("Equal", 2, 3),
    Sketcher.Constraint("Symmetric", 0, 3, 2, 3, -1, 1),
    Sketcher.Constraint("Symmetric", 1, 3, 3, 3, -1, 1),
    Sketcher.Constraint("Symmetric", 1, 3, 2, 3, -2),
    Sketcher.Constraint("Diameter", 0, 11.0),
    Sketcher.Constraint("DistanceX", 0, 3, -1, 1, 80.0),
    Sketcher.Constraint("DistanceY", -1, 1, 0, 3, 45.0),
])
sketch4.setExpression("Constraints[6]", "Params.sketch4_diameter")
doc.recompute()
hole = body.newObject("PartDesign::Hole", "Hole")
hole.Profile = sketch4
hole.ThreadType = "None"
hole.setExpression("Diameter", "Params.hole_diameter")
hole.DepthType = "ThroughAll"

sketch5 = body.newObject("Sketcher::SketchObject", "Sketch004")
sketch5.AttachmentSupport = (doc.getObject("XY_Plane"), [""])
sketch5.MapMode = "FlatFace"
sketch5.AttachmentOffset = App.Placement(App.Vector(0, 0, 22), App.Rotation())
sketch5.addGeometry([
    Part.Circle(App.Vector(-80, 60, 0), App.Vector(0, 0, 1), 3.2),
    Part.Circle(App.Vector(-80, -60, 0), App.Vector(0, 0, 1), 3.2),
    Part.Circle(App.Vector(80, -60, 0), App.Vector(0, 0, 1), 3.2),
    Part.Circle(App.Vector(80, 60, 0), App.Vector(0, 0, 1), 3.2),
], False)
sketch5.addConstraint([
    Sketcher.Constraint("Equal", 0, 1),
    Sketcher.Constraint("Equal", 1, 2),
    Sketcher.Constraint("Equal", 2, 3),
    Sketcher.Constraint("Symmetric", 0, 3, 2, 3, -1, 1),
    Sketcher.Constraint("Symmetric", 1, 3, 3, 3, -1, 1),
    Sketcher.Constraint("Symmetric", 1, 3, 2, 3, -2),
    Sketcher.Constraint("Diameter", 0, 6.4),
    Sketcher.Constraint("DistanceX", 0, 3, -1, 1, 80.0),
    Sketcher.Constraint("DistanceY", -1, 1, 0, 3, 60.0),
])
sketch5.setExpression("Constraints[6]", "Params.sketch5_diameter")
doc.recompute()
hole2 = body.newObject("PartDesign::Hole", "Hole001")
hole2.Profile = sketch5
hole2.ThreadType = "None"
hole2.setExpression("Diameter", "Params.hole2_diameter")
hole2.DepthType = "ThroughAll"

sketch6 = body.newObject("Sketcher::SketchObject", "Sketch005")
sketch6.AttachmentSupport = (doc.getObject("XY_Plane"), [""])
sketch6.MapMode = "FlatFace"
sketch6.addGeometry([
    Part.Circle(App.Vector(80, 60, 0), App.Vector(0, 0, 1), 6),
    Part.Circle(App.Vector(80, -60, 0), App.Vector(0, 0, 1), 6),
    Part.Circle(App.Vector(-80, -60, 0), App.Vector(0, 0, 1), 6),
    Part.Circle(App.Vector(-80, 60, 0), App.Vector(0, 0, 1), 6),
], False)
sketch6.addConstraint([
    Sketcher.Constraint("Equal", 0, 1),
    Sketcher.Constraint("Equal", 1, 2),
    Sketcher.Constraint("Equal", 2, 3),
    Sketcher.Constraint("Symmetric", 0, 3, 2, 3, -1, 1),
    Sketcher.Constraint("Symmetric", 1, 3, 3, 3, -1, 1),
    Sketcher.Constraint("Symmetric", 1, 3, 2, 3, -2),
    Sketcher.Constraint("Diameter", 0, 11.0),
    Sketcher.Constraint("DistanceX", -1, 1, 0, 3, 80.0),
    Sketcher.Constraint("DistanceY", -1, 1, 0, 3, 60.0),
])
sketch6.setExpression("Constraints[6]", "Params.sketch6_diameter")
pocket3 = body.newObject("PartDesign::Pocket", "Pocket002")
pocket3.Profile = sketch6
pocket3.setExpression("Length", "Params.pocket3_length")
pocket3.Reversed = True

doc.recompute()
